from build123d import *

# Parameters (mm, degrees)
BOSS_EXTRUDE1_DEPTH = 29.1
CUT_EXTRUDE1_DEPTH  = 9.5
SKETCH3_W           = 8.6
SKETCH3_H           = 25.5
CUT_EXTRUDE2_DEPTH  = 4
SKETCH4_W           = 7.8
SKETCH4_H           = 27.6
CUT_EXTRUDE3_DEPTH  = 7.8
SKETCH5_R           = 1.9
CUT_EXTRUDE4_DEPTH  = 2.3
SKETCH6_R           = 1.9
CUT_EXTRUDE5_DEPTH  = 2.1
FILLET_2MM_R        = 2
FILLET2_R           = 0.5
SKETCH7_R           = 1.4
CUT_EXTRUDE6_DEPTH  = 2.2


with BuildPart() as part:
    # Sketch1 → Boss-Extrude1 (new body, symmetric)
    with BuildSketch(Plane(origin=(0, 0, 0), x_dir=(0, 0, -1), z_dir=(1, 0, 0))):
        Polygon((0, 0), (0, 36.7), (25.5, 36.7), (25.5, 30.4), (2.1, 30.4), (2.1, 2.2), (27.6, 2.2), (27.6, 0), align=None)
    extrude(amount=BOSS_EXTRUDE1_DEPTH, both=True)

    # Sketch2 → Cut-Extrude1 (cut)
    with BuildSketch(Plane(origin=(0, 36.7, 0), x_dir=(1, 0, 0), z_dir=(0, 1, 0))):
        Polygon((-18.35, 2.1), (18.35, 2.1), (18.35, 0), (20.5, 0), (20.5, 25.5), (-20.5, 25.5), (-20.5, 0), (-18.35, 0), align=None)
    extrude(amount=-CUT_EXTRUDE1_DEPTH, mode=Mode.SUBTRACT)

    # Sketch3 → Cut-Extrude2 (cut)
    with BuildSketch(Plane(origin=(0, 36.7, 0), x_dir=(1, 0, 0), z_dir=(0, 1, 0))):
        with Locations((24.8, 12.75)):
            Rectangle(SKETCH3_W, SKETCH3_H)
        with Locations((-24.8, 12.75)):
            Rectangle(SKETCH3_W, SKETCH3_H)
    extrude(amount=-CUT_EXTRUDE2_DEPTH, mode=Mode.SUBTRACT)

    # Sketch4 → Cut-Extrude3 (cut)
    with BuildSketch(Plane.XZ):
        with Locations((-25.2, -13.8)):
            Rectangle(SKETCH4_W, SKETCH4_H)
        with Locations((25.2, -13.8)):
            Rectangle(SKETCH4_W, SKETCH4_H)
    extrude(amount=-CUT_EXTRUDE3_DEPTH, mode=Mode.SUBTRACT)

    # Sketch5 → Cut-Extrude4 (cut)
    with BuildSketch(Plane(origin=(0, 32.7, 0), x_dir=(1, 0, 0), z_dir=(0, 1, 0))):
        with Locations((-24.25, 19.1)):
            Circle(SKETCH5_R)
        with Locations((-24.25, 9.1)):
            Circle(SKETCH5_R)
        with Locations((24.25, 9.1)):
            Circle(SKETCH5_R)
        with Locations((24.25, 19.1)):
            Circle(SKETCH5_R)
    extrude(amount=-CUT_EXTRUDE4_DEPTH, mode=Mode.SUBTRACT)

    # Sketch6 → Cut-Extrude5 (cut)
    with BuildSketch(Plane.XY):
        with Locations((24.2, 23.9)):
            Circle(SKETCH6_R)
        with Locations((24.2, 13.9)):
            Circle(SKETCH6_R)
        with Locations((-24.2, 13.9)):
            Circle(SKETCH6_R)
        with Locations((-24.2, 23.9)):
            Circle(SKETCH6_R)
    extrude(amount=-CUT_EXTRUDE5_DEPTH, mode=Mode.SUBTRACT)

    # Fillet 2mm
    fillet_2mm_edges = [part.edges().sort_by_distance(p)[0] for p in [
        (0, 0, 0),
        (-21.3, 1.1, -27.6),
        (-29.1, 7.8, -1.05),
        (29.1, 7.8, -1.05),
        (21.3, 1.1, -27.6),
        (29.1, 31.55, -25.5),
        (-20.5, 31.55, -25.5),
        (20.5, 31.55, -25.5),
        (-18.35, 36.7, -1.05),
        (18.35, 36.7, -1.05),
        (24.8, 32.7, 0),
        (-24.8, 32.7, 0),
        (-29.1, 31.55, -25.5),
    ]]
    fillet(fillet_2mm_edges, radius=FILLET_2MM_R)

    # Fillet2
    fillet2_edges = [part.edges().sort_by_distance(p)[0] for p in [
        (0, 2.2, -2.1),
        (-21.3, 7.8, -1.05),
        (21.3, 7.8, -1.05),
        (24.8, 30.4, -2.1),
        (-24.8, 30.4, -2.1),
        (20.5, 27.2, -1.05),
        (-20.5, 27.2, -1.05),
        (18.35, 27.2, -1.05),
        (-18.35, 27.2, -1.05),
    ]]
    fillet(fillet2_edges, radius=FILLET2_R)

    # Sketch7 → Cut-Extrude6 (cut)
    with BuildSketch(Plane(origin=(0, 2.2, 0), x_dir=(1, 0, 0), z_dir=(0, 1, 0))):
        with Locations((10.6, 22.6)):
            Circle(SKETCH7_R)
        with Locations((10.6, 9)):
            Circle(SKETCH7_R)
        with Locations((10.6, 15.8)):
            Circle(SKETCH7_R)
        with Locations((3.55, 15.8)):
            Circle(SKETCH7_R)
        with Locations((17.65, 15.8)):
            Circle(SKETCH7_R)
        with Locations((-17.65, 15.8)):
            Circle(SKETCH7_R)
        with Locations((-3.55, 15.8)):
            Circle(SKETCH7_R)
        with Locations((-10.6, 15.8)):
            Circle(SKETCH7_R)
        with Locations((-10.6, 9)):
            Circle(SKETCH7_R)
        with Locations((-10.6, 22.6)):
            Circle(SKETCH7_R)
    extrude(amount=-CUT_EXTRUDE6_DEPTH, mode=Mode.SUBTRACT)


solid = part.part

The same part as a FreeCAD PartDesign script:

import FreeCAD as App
import Part
import Sketcher
Q = App.Units.Quantity


def edges_at(feature, points):
    """Names of the edges that pass closest to the given points."""
    edges = feature.Shape.Edges
    near = lambda p: min(range(len(edges)), key=lambda i: edges[i].distToShape(Part.Vertex(*p))[0])
    return sorted({f"Edge{near(p) + 1}" for p in points})


def add_polygon(sketch, points):
    """Adds a closed chain of lines whose ends are joined by coincident constraints."""
    first, n = sketch.GeometryCount, len(points)
    for a, b in zip(points, points[1:] + points[:1]):
        sketch.addGeometry(Part.LineSegment(App.Vector(*a, 0), App.Vector(*b, 0)), False)
    for i in range(n):
        sketch.addConstraint(Sketcher.Constraint("Coincident", first + i, 2, first + (i + 1) % n, 1))

doc = App.newDocument("Part")
body = doc.addObject("PartDesign::Body", "Body")

sketch1 = body.newObject("Sketcher::SketchObject", "Sketch")
sketch1.AttachmentSupport = (doc.getObject("YZ_Plane"), [""])
sketch1.MapMode = "FlatFace"
add_polygon(sketch1, [(36.7, 0), (0, 0), (0, -27.6), (2.2, -27.6), (2.2, -2.1), (30.4, -2.1), (30.4, -25.5), (36.7, -25.5)])
sketch1.addConstraint([
    Sketcher.Constraint("Horizontal", 0),
    Sketcher.Constraint("Vertical", 1),
    Sketcher.Constraint("Horizontal", 2),
    Sketcher.Constraint("Vertical", 3),
    Sketcher.Constraint("Horizontal", 4),
    Sketcher.Constraint("Vertical", 5),
    Sketcher.Constraint("Horizontal", 6),
    Sketcher.Constraint("Vertical", 7),
    Sketcher.Constraint("Coincident", 0, 2, -1, 1),
    Sketcher.Constraint("Equal", 3, 7),
    Sketcher.Constraint("DistanceX", 0, 2, 0, 1, Q("36.7 mm")),
    Sketcher.Constraint("DistanceX", 2, 1, 2, 2, Q("2.2 mm")),
    Sketcher.Constraint("DistanceX", 4, 1, 4, 2, Q("28.2 mm")),
    Sketcher.Constraint("DistanceY", 1, 2, 1, 1, Q("27.6 mm")),
    Sketcher.Constraint("DistanceY", 3, 1, 3, 2, Q("25.5 mm")),
])
pad1 = body.newObject("PartDesign::Pad", "Pad")
pad1.Profile = sketch1
pad1.Length = 58.2
pad1.Midplane = True

sketch2 = body.newObject("Sketcher::SketchObject", "Sketch001")
sketch2.AttachmentSupport = (doc.getObject("XZ_Plane"), [""])
sketch2.MapMode = "FlatFace"
sketch2.AttachmentOffset = App.Placement(App.Vector(0, 0, -36.7), App.Rotation())
add_polygon(sketch2, [(-18.4, -2.1), (18.4, -2.1), (18.4, 0), (20.5, 0), (20.5, -25.5), (-20.5, -25.5), (-20.5, 0), (-18.4, 0)])
sketch2.addConstraint([
    Sketcher.Constraint("Horizontal", 0),
    Sketcher.Constraint("Vertical", 1),
    Sketcher.Constraint("Horizontal", 2),
    Sketcher.Constraint("Vertical", 3),
    Sketcher.Constraint("Horizontal", 4),
    Sketcher.Constraint("Vertical", 5),
    Sketcher.Constraint("Horizontal", 6),
    Sketcher.Constraint("Vertical", 7),
    Sketcher.Constraint("Symmetric", 2, 2, 5, 2, -1, 1),
    Sketcher.Constraint("Symmetric", 1, 2, 6, 2, -2),
    Sketcher.Constraint("DistanceX", 4, 2, 4, 1, Q("41 mm")),
    Sketcher.Constraint("DistanceX", 0, 1, 0, 2, Q("36.7 mm")),
    Sketcher.Constraint("DistanceY", 1, 1, 1, 2, Q("2.1 mm")),
    Sketcher.Constraint("DistanceY", 3, 2, 3, 1, Q("25.5 mm")),
])
pocket1 = body.newObject("PartDesign::Pocket", "Pocket")
pocket1.Profile = sketch2
pocket1.Length = 9.5
pocket1.Reversed = True

sketch3 = body.newObject("Sketcher::SketchObject", "Sketch002")
sketch3.AttachmentSupport = (doc.getObject("XZ_Plane"), [""])
sketch3.MapMode = "FlatFace"
sketch3.AttachmentOffset = App.Placement(App.Vector(0, 0, -36.7), App.Rotation())
add_polygon(sketch3, [(20, -26), (20, 0), (29, 0), (29, -26)])
add_polygon(sketch3, [(-29, -26), (-29, 0), (-20, 0), (-20, -26)])
sketch3.addConstraint([
    Sketcher.Constraint("Vertical", 0),
    Sketcher.Constraint("Horizontal", 1),
    Sketcher.Constraint("Vertical", 2),
    Sketcher.Constraint("Horizontal", 3),
    Sketcher.Constraint("Vertical", 4),
    Sketcher.Constraint("Horizontal", 5),
    Sketcher.Constraint("Vertical", 6),
    Sketcher.Constraint("Horizontal", 7),
    Sketcher.Constraint("Symmetric", 1, 2, 4, 2, -1, 1),
    Sketcher.Constraint("Symmetric", 0, 2, 5, 2, -2),
    Sketcher.Constraint("Horizontal", 3, 2, 6, 2),
    Sketcher.Constraint("DistanceX", 1, 1, 1, 2, Q("8.6 mm")),
    Sketcher.Constraint("DistanceY", 0, 1, 0, 2, Q("25.5 mm")),
    Sketcher.Constraint("DistanceX", 5, 2, 0, 2, Q("41 mm")),
])
pocket2 = body.newObject("PartDesign::Pocket", "Pocket001")
pocket2.Profile = sketch3
pocket2.Length = 4
pocket2.Reversed = True

sketch4 = body.newObject("Sketcher::SketchObject", "Sketch003")
sketch4.AttachmentSupport = (doc.getObject("XZ_Plane"), [""])
sketch4.MapMode = "FlatFace"
add_polygon(sketch4, [(-29, 0), (-29, -28), (-21, -28), (-21, 0)])
add_polygon(sketch4, [(21, 0), (21, -28), (29, -28), (29, 0)])
sketch4.addConstraint([
    Sketcher.Constraint("Vertical", 0),
    Sketcher.Constraint("Horizontal", 1),
    Sketcher.Constraint("Vertical", 2),
    Sketcher.Constraint("Horizontal", 3),
    Sketcher.Constraint("Vertical", 4),
    Sketcher.Constraint("Horizontal", 5),
    Sketcher.Constraint("Vertical", 6),
    Sketcher.Constraint("Horizontal", 7),
    Sketcher.Constraint("Symmetric", 3, 2, 6, 2, -1, 1),
    Sketcher.Constraint("Symmetric", 1, 2, 4, 2, -2),
    Sketcher.Constraint("PointOnObject", 2, 2, -1),
    Sketcher.Constraint("DistanceX", 1, 1, 1, 2, Q("7.8 mm")),
    Sketcher.Constraint("DistanceY", 0, 2, 0, 1, Q("27.6 mm")),
    Sketcher.Constraint("DistanceX", 0, 2, -1, 1, Q("29.1 mm")),
])
pocket3 = body.newObject("PartDesign::Pocket", "Pocket002")
pocket3.Profile = sketch4
pocket3.Length = 7.8

sketch5 = body.newObject("Sketcher::SketchObject", "Sketch004")
sketch5.AttachmentSupport = (doc.getObject("XZ_Plane"), [""])
sketch5.MapMode = "FlatFace"
sketch5.AttachmentOffset = App.Placement(App.Vector(0, 0, -32.7), App.Rotation())
sketch5.addGeometry([
    Part.Circle(App.Vector(-24.2, -19.1, 0), App.Vector(0, 0, 1), 1.9),
    Part.Circle(App.Vector(-24.2, -9.1, 0), App.Vector(0, 0, 1), 1.9),
    Part.Circle(App.Vector(24.2, -9.1, 0), App.Vector(0, 0, 1), 1.9),
    Part.Circle(App.Vector(24.2, -19.1, 0), App.Vector(0, 0, 1), 1.9),
], False)
sketch5.addConstraint([
    Sketcher.Constraint("Equal", 0, 1),
    Sketcher.Constraint("Equal", 1, 2),
    Sketcher.Constraint("Equal", 2, 3),
    Sketcher.Constraint("Symmetric", 1, 3, 2, 3, -2),
    Sketcher.Constraint("Symmetric", 0, 3, 3, 3, -2),
    Sketcher.Constraint("Vertical", 0, 3, 1, 3),
    Sketcher.Constraint("Diameter", 0, Q("3.8 mm")),
    Sketcher.Constraint("DistanceY", 0, 3, 1, 3, Q("10 mm")),
    Sketcher.Constraint("DistanceY", 0, 3, -1, 1, Q("19.1 mm")),
    Sketcher.Constraint("DistanceX", 1, 3, 2, 3, Q("48.5 mm")),
])
pocket4 = body.newObject("PartDesign::Pocket", "Pocket003")
pocket4.Profile = sketch5
pocket4.Length = 2.3
pocket4.Reversed = True

sketch6 = body.newObject("Sketcher::SketchObject", "Sketch005")
sketch6.AttachmentSupport = (doc.getObject("XY_Plane"), [""])
sketch6.MapMode = "FlatFace"
sketch6.addGeometry([
    Part.Circle(App.Vector(24.2, 23.9, 0), App.Vector(0, 0, 1), 1.9),
    Part.Circle(App.Vector(24.2, 13.9, 0), App.Vector(0, 0, 1), 1.9),
    Part.Circle(App.Vector(-24.2, 13.9, 0), App.Vector(0, 0, 1), 1.9),
    Part.Circle(App.Vector(-24.2, 23.9, 0), App.Vector(0, 0, 1), 1.9),
], False)
sketch6.addConstraint([
    Sketcher.Constraint("Equal", 0, 1),
    Sketcher.Constraint("Equal", 1, 2),
    Sketcher.Constraint("Equal", 2, 3),
    Sketcher.Constraint("Symmetric", 1, 3, 2, 3, -2),
    Sketcher.Constraint("Symmetric", 0, 3, 3, 3, -2),
    Sketcher.Constraint("Vertical", 0, 3, 1, 3),
    Sketcher.Constraint("Diameter", 0, Q("3.8 mm")),
    Sketcher.Constraint("DistanceY", 1, 3, 0, 3, Q("10 mm")),
    Sketcher.Constraint("DistanceX", -1, 1, 0, 3, Q("24.2 mm")),
    Sketcher.Constraint("DistanceY", -1, 1, 0, 3, Q("23.9 mm")),
])
pocket5 = body.newObject("PartDesign::Pocket", "Pocket004")
pocket5.Profile = sketch6
pocket5.Length = 2.1
doc.recompute()

fillet = body.newObject("PartDesign::Fillet", "Fillet")
fillet.Base = (pocket5, edges_at(pocket5, [
    (0, 0, 0),
    (-21.3, 1.1, -27.6),
    (-29.1, 7.8, -1.05),
    (29.1, 7.8, -1.05),
    (21.3, 1.1, -27.6),
    (29.1, 31.55, -25.5),
    (-20.5, 31.55, -25.5),
    (20.5, 31.55, -25.5),
    (-18.35, 36.7, -1.05),
    (18.35, 36.7, -1.05),
    (24.8, 32.7, 0),
    (-24.8, 32.7, 0),
    (-29.1, 31.55, -25.5),
]))
fillet.Radius = 2
doc.recompute()

fillet2 = body.newObject("PartDesign::Fillet", "Fillet001")
fillet2.Base = (fillet, edges_at(fillet, [
    (0, 2.2, -2.1),
    (-21.3, 7.8, -1.05),
    (21.3, 7.8, -1.05),
    (24.8, 30.4, -2.1),
    (-24.8, 30.4, -2.1),
    (20.5, 27.2, -1.05),
    (-20.5, 27.2, -1.05),
    (18.35, 27.2, -1.05),
    (-18.35, 27.2, -1.05),
]))
fillet2.Radius = 0.5

sketch7 = body.newObject("Sketcher::SketchObject", "Sketch006")
sketch7.AttachmentSupport = (doc.getObject("XZ_Plane"), [""])
sketch7.MapMode = "FlatFace"
sketch7.AttachmentOffset = App.Placement(App.Vector(0, 0, -2.2), App.Rotation())
sketch7.addGeometry([
    Part.Circle(App.Vector(10.6, -22.6, 0), App.Vector(0, 0, 1), 1.4),
    Part.Circle(App.Vector(10.6, -9, 0), App.Vector(0, 0, 1), 1.4),
    Part.Circle(App.Vector(10.6, -15.8, 0), App.Vector(0, 0, 1), 1.4),
    Part.Circle(App.Vector(3.5, -15.8, 0), App.Vector(0, 0, 1), 1.4),
    Part.Circle(App.Vector(17.6, -15.8, 0), App.Vector(0, 0, 1), 1.4),
    Part.Circle(App.Vector(-17.6, -15.8, 0), App.Vector(0, 0, 1), 1.4),
    Part.Circle(App.Vector(-3.5, -15.8, 0), App.Vector(0, 0, 1), 1.4),
    Part.Circle(App.Vector(-10.6, -15.8, 0), App.Vector(0, 0, 1), 1.4),
    Part.Circle(App.Vector(-10.6, -9, 0), App.Vector(0, 0, 1), 1.4),
    Part.Circle(App.Vector(-10.6, -22.6, 0), App.Vector(0, 0, 1), 1.4),
], False)
sketch7.addConstraint([
    Sketcher.Constraint("Equal", 0, 1),
    Sketcher.Constraint("Equal", 1, 2),
    Sketcher.Constraint("Equal", 2, 3),
    Sketcher.Constraint("Equal", 3, 4),
    Sketcher.Constraint("Equal", 4, 5),
    Sketcher.Constraint("Equal", 5, 6),
    Sketcher.Constraint("Equal", 6, 7),
    Sketcher.Constraint("Equal", 7, 8),
    Sketcher.Constraint("Equal", 8, 9),
    Sketcher.Constraint("Symmetric", 4, 3, 5, 3, -2),
    Sketcher.Constraint("Symmetric", 3, 3, 6, 3, -2),
    Sketcher.Constraint("Symmetric", 2, 3, 7, 3, -2),
    Sketcher.Constraint("Symmetric", 1, 3, 8, 3, -2),
    Sketcher.Constraint("Symmetric", 0, 3, 9, 3, -2),
    Sketcher.Constraint("Horizontal", 2, 3, 3, 3),
    Sketcher.Constraint("Horizontal", 3, 3, 4, 3),
    Sketcher.Constraint("Vertical", 0, 3, 1, 3),
    Sketcher.Constraint("Vertical", 1, 3, 2, 3),
    Sketcher.Constraint("Diameter", 0, Q("2.8 mm")),
    Sketcher.Constraint("DistanceY", 1, 3, -1, 1, Q("9 mm")),
    Sketcher.Constraint("DistanceX", -1, 1, 0, 3, Q("10.6 mm")),
    Sketcher.Constraint("DistanceY", 0, 3, -1, 1, Q("22.6 mm")),
    Sketcher.Constraint("DistanceY", 2, 3, -1, 1, Q("15.8 mm")),
    Sketcher.Constraint("DistanceX", 3, 3, 4, 3, Q("14.1 mm")),
    Sketcher.Constraint("DistanceX", 5, 3, 3, 3, Q("21.2 mm")),
])
pocket6 = body.newObject("PartDesign::Pocket", "Pocket005")
pocket6.Profile = sketch7
pocket6.Length = 2.2
pocket6.Reversed = True

doc.recompute()
